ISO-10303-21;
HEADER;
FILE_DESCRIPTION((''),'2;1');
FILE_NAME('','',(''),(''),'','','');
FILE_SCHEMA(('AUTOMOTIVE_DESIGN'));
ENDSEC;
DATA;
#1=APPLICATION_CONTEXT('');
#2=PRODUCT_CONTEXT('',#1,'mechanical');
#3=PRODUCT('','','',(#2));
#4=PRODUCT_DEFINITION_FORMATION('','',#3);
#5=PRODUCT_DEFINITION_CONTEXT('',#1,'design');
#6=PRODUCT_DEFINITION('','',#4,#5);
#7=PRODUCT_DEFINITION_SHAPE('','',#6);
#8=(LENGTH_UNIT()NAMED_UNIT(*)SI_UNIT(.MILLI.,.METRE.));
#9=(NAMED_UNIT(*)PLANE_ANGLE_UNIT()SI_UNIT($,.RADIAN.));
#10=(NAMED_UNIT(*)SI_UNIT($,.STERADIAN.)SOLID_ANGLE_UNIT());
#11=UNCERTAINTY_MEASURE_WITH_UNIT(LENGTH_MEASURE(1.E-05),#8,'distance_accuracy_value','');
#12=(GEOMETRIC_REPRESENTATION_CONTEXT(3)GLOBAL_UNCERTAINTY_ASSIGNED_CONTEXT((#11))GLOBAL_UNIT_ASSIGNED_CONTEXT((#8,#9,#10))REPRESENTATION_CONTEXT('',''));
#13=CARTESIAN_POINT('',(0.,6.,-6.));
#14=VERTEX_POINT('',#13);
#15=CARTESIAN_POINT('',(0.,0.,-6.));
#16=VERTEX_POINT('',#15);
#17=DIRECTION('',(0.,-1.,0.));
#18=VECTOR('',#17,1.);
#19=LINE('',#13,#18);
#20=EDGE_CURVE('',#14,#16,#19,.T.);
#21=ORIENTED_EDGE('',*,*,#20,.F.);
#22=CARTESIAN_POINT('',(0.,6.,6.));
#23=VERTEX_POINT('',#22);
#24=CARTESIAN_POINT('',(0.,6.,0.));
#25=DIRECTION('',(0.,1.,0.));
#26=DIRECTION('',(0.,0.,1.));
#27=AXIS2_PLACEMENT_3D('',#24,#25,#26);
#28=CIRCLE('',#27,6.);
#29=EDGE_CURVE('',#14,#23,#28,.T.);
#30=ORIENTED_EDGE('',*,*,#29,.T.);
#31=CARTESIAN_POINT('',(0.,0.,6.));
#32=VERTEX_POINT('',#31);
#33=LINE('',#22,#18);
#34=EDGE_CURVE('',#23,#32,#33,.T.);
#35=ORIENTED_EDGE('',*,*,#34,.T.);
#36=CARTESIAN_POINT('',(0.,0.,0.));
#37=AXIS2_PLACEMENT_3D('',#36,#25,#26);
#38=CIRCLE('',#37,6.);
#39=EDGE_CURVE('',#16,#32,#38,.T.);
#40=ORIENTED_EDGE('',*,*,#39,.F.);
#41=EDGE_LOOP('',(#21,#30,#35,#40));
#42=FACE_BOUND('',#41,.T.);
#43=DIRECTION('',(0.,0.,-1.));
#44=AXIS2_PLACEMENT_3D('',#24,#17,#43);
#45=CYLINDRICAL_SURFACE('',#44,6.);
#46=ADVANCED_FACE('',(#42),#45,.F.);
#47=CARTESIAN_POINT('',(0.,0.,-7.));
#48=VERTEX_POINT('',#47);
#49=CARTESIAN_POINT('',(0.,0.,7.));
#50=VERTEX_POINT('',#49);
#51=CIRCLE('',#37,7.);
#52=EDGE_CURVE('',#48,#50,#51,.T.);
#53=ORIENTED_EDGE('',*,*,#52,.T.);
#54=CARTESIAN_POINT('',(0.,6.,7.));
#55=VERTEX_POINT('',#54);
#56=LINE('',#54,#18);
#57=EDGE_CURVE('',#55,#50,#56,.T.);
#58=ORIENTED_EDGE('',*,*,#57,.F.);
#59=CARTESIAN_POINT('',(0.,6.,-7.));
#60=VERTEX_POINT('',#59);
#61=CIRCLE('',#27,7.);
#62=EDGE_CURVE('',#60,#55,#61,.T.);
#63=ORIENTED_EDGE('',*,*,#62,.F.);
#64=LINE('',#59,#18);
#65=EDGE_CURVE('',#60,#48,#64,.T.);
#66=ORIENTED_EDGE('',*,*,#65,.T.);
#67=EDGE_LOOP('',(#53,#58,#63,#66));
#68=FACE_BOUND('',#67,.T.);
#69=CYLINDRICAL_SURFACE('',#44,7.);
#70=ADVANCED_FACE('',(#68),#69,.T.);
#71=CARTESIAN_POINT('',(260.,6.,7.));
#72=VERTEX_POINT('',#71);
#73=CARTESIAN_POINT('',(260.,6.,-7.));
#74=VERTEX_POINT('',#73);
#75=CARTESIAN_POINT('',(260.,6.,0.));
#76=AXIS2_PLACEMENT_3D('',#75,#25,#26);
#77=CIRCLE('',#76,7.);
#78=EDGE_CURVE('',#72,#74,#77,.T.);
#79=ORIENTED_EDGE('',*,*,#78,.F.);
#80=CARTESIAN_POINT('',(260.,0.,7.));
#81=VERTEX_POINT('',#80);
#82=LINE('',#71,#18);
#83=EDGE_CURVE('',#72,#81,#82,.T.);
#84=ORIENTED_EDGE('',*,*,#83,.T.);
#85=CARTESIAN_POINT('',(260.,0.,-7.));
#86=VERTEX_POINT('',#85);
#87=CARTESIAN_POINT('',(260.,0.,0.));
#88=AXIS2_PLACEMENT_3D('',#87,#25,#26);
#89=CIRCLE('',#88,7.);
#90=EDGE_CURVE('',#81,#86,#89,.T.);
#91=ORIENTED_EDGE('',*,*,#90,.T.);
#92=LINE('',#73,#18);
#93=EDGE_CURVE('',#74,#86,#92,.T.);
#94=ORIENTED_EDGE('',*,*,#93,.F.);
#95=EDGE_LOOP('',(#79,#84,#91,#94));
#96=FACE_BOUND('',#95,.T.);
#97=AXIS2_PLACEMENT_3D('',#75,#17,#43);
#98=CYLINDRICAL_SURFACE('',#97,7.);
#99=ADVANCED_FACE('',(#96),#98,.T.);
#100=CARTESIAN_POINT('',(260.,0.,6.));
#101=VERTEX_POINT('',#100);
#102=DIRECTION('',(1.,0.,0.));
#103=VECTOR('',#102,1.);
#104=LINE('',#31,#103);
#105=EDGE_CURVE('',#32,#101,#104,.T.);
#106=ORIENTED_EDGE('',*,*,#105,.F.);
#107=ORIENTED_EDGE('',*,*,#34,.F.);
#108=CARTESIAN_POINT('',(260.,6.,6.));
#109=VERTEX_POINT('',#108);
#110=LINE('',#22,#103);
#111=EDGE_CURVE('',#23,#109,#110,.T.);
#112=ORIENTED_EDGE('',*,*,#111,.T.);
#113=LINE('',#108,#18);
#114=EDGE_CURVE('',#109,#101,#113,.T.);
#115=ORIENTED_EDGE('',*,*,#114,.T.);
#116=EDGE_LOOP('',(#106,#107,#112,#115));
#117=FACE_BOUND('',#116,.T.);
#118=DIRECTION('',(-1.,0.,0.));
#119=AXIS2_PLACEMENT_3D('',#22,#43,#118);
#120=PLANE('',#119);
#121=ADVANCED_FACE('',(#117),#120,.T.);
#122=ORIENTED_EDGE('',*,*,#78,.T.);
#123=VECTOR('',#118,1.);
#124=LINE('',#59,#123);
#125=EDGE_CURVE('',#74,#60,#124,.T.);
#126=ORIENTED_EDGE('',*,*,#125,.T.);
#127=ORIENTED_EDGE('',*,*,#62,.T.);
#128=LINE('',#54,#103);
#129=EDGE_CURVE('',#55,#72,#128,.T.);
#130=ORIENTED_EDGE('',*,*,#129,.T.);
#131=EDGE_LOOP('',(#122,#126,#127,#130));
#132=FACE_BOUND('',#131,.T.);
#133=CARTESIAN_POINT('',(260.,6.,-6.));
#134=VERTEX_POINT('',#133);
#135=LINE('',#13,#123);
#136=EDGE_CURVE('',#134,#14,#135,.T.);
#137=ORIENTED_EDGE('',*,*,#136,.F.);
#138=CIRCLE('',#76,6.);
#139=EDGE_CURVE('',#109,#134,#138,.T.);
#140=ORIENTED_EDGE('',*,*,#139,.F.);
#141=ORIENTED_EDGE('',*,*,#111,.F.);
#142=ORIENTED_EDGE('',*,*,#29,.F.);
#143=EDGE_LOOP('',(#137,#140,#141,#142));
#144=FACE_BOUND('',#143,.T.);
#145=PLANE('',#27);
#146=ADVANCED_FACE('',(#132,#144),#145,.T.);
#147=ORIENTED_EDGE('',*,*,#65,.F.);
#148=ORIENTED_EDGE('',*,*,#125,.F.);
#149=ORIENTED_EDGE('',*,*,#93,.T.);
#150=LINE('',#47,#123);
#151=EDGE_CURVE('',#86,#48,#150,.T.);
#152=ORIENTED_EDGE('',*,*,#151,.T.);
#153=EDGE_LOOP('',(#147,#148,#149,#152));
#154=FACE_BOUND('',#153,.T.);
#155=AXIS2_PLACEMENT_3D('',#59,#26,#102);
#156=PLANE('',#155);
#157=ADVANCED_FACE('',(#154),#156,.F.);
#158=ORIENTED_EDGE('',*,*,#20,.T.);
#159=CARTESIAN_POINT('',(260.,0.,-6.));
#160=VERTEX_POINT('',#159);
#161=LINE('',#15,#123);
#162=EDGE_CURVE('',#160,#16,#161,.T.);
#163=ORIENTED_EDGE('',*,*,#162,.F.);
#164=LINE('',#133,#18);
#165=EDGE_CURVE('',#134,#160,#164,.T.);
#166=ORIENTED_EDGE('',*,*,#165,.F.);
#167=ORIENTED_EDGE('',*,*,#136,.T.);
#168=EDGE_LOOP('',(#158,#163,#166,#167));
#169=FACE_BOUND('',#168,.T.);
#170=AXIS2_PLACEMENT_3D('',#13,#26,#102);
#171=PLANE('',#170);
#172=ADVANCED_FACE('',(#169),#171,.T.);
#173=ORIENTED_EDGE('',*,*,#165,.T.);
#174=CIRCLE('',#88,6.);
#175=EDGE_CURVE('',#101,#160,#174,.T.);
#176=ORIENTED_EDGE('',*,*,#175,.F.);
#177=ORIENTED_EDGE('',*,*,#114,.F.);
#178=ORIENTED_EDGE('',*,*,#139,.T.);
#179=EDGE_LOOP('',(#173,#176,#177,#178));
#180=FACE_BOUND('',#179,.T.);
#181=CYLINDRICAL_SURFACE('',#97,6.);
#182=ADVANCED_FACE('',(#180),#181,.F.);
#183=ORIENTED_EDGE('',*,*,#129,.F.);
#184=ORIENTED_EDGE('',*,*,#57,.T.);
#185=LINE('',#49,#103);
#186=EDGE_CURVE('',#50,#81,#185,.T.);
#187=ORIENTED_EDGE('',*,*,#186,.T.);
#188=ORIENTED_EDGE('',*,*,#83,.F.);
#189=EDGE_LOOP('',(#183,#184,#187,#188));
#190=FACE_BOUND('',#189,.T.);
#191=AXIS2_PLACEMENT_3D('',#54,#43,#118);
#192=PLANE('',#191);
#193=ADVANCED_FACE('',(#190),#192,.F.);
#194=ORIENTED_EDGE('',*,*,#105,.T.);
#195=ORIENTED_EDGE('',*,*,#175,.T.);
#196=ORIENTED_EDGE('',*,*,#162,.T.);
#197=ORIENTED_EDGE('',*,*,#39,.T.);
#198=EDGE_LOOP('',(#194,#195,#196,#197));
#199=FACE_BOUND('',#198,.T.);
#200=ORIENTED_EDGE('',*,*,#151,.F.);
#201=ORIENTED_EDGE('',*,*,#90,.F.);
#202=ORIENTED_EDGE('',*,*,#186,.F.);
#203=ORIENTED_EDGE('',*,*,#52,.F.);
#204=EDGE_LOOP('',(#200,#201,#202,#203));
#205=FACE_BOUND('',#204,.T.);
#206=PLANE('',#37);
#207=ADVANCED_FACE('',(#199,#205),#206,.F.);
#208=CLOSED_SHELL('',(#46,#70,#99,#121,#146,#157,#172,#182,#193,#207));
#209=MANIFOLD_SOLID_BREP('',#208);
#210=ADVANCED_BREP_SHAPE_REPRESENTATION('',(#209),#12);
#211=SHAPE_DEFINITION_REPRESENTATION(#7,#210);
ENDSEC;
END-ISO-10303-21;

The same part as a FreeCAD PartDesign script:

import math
import FreeCAD as App
import Part
import Sketcher
from FreeCAD import Vector

doc = App.newDocument("Part")
body = doc.addObject("PartDesign::Body", "Body")

sketch1 = doc.addObject("Sketcher::SketchObject", "Sketch")
body.addObject(sketch1)
sketch1.AttachmentSupport = (doc.XZ_Plane, [""])
sketch1.MapMode = "FlatFace"
sketch1.addGeometry(Part.LineSegment(Vector(260, -7, 0), Vector(0, -7, 0)), False)
sketch1.addGeometry(Part.ArcOfCircle(Part.Circle(Vector(0, 0, 0), Vector(0, 0, 1), 7), math.radians(90), math.radians(270)), False)
sketch1.addGeometry(Part.LineSegment(Vector(0, 7, 0), Vector(260, 7, 0)), False)
sketch1.addGeometry(Part.ArcOfCircle(Part.Circle(Vector(260, 0, 0), Vector(0, 0, 1), 7), math.radians(-90), math.radians(90)), False)
sketch1.addGeometry(Part.LineSegment(Vector(0, -6, 0), Vector(260, -6, 0)), False)
sketch1.addGeometry(Part.ArcOfCircle(Part.Circle(Vector(260, 0, 0), Vector(0, 0, 1), 6), math.radians(-90), math.radians(90)), False)
sketch1.addGeometry(Part.LineSegment(Vector(260, 6, 0), Vector(0, 6, 0)), False)
sketch1.addGeometry(Part.ArcOfCircle(Part.Circle(Vector(0, 0, 0), Vector(0, 0, 1), 6), math.radians(90), math.radians(270)), False)
sketch1.addConstraint(Sketcher.Constraint("Tangent", 0, 2, 1, 2))
sketch1.addConstraint(Sketcher.Constraint("Tangent", 1, 1, 2, 1))
sketch1.addConstraint(Sketcher.Constraint("Tangent", 2, 2, 3, 2))
sketch1.addConstraint(Sketcher.Constraint("Tangent", 3, 1, 0, 1))
sketch1.addConstraint(Sketcher.Constraint("Tangent", 4, 2, 5, 1))
sketch1.addConstraint(Sketcher.Constraint("Tangent", 5, 2, 6, 1))
sketch1.addConstraint(Sketcher.Constraint("Tangent", 6, 2, 7, 1))
sketch1.addConstraint(Sketcher.Constraint("Tangent", 7, 2, 4, 1))
sketch1.addConstraint(Sketcher.Constraint("Horizontal", 0))
sketch1.addConstraint(Sketcher.Constraint("Horizontal", 2))
sketch1.addConstraint(Sketcher.Constraint("Horizontal", 4))
sketch1.addConstraint(Sketcher.Constraint("Horizontal", 6))
sketch1.addConstraint(Sketcher.Constraint("Coincident", 1, 3, -1, 1))
sketch1.addConstraint(Sketcher.Constraint("Coincident", 7, 3, -1, 1))
sketch1.addConstraint(Sketcher.Constraint("Vertical", 5, 3, 2, 2))
sketch1.addConstraint(Sketcher.Constraint("Radius", 1, 7.0))
sketch1.addConstraint(Sketcher.Constraint("Radius", 5, 6.0))
sketch1.addConstraint(Sketcher.Constraint("DistanceX", 0, 2, 0, 1, 260.0))
pad1 = doc.addObject("PartDesign::Pad", "Pad")
body.addObject(pad1)
pad1.Profile = sketch1
pad1.Length = 6
pad1.Reversed = True

doc.recompute()
